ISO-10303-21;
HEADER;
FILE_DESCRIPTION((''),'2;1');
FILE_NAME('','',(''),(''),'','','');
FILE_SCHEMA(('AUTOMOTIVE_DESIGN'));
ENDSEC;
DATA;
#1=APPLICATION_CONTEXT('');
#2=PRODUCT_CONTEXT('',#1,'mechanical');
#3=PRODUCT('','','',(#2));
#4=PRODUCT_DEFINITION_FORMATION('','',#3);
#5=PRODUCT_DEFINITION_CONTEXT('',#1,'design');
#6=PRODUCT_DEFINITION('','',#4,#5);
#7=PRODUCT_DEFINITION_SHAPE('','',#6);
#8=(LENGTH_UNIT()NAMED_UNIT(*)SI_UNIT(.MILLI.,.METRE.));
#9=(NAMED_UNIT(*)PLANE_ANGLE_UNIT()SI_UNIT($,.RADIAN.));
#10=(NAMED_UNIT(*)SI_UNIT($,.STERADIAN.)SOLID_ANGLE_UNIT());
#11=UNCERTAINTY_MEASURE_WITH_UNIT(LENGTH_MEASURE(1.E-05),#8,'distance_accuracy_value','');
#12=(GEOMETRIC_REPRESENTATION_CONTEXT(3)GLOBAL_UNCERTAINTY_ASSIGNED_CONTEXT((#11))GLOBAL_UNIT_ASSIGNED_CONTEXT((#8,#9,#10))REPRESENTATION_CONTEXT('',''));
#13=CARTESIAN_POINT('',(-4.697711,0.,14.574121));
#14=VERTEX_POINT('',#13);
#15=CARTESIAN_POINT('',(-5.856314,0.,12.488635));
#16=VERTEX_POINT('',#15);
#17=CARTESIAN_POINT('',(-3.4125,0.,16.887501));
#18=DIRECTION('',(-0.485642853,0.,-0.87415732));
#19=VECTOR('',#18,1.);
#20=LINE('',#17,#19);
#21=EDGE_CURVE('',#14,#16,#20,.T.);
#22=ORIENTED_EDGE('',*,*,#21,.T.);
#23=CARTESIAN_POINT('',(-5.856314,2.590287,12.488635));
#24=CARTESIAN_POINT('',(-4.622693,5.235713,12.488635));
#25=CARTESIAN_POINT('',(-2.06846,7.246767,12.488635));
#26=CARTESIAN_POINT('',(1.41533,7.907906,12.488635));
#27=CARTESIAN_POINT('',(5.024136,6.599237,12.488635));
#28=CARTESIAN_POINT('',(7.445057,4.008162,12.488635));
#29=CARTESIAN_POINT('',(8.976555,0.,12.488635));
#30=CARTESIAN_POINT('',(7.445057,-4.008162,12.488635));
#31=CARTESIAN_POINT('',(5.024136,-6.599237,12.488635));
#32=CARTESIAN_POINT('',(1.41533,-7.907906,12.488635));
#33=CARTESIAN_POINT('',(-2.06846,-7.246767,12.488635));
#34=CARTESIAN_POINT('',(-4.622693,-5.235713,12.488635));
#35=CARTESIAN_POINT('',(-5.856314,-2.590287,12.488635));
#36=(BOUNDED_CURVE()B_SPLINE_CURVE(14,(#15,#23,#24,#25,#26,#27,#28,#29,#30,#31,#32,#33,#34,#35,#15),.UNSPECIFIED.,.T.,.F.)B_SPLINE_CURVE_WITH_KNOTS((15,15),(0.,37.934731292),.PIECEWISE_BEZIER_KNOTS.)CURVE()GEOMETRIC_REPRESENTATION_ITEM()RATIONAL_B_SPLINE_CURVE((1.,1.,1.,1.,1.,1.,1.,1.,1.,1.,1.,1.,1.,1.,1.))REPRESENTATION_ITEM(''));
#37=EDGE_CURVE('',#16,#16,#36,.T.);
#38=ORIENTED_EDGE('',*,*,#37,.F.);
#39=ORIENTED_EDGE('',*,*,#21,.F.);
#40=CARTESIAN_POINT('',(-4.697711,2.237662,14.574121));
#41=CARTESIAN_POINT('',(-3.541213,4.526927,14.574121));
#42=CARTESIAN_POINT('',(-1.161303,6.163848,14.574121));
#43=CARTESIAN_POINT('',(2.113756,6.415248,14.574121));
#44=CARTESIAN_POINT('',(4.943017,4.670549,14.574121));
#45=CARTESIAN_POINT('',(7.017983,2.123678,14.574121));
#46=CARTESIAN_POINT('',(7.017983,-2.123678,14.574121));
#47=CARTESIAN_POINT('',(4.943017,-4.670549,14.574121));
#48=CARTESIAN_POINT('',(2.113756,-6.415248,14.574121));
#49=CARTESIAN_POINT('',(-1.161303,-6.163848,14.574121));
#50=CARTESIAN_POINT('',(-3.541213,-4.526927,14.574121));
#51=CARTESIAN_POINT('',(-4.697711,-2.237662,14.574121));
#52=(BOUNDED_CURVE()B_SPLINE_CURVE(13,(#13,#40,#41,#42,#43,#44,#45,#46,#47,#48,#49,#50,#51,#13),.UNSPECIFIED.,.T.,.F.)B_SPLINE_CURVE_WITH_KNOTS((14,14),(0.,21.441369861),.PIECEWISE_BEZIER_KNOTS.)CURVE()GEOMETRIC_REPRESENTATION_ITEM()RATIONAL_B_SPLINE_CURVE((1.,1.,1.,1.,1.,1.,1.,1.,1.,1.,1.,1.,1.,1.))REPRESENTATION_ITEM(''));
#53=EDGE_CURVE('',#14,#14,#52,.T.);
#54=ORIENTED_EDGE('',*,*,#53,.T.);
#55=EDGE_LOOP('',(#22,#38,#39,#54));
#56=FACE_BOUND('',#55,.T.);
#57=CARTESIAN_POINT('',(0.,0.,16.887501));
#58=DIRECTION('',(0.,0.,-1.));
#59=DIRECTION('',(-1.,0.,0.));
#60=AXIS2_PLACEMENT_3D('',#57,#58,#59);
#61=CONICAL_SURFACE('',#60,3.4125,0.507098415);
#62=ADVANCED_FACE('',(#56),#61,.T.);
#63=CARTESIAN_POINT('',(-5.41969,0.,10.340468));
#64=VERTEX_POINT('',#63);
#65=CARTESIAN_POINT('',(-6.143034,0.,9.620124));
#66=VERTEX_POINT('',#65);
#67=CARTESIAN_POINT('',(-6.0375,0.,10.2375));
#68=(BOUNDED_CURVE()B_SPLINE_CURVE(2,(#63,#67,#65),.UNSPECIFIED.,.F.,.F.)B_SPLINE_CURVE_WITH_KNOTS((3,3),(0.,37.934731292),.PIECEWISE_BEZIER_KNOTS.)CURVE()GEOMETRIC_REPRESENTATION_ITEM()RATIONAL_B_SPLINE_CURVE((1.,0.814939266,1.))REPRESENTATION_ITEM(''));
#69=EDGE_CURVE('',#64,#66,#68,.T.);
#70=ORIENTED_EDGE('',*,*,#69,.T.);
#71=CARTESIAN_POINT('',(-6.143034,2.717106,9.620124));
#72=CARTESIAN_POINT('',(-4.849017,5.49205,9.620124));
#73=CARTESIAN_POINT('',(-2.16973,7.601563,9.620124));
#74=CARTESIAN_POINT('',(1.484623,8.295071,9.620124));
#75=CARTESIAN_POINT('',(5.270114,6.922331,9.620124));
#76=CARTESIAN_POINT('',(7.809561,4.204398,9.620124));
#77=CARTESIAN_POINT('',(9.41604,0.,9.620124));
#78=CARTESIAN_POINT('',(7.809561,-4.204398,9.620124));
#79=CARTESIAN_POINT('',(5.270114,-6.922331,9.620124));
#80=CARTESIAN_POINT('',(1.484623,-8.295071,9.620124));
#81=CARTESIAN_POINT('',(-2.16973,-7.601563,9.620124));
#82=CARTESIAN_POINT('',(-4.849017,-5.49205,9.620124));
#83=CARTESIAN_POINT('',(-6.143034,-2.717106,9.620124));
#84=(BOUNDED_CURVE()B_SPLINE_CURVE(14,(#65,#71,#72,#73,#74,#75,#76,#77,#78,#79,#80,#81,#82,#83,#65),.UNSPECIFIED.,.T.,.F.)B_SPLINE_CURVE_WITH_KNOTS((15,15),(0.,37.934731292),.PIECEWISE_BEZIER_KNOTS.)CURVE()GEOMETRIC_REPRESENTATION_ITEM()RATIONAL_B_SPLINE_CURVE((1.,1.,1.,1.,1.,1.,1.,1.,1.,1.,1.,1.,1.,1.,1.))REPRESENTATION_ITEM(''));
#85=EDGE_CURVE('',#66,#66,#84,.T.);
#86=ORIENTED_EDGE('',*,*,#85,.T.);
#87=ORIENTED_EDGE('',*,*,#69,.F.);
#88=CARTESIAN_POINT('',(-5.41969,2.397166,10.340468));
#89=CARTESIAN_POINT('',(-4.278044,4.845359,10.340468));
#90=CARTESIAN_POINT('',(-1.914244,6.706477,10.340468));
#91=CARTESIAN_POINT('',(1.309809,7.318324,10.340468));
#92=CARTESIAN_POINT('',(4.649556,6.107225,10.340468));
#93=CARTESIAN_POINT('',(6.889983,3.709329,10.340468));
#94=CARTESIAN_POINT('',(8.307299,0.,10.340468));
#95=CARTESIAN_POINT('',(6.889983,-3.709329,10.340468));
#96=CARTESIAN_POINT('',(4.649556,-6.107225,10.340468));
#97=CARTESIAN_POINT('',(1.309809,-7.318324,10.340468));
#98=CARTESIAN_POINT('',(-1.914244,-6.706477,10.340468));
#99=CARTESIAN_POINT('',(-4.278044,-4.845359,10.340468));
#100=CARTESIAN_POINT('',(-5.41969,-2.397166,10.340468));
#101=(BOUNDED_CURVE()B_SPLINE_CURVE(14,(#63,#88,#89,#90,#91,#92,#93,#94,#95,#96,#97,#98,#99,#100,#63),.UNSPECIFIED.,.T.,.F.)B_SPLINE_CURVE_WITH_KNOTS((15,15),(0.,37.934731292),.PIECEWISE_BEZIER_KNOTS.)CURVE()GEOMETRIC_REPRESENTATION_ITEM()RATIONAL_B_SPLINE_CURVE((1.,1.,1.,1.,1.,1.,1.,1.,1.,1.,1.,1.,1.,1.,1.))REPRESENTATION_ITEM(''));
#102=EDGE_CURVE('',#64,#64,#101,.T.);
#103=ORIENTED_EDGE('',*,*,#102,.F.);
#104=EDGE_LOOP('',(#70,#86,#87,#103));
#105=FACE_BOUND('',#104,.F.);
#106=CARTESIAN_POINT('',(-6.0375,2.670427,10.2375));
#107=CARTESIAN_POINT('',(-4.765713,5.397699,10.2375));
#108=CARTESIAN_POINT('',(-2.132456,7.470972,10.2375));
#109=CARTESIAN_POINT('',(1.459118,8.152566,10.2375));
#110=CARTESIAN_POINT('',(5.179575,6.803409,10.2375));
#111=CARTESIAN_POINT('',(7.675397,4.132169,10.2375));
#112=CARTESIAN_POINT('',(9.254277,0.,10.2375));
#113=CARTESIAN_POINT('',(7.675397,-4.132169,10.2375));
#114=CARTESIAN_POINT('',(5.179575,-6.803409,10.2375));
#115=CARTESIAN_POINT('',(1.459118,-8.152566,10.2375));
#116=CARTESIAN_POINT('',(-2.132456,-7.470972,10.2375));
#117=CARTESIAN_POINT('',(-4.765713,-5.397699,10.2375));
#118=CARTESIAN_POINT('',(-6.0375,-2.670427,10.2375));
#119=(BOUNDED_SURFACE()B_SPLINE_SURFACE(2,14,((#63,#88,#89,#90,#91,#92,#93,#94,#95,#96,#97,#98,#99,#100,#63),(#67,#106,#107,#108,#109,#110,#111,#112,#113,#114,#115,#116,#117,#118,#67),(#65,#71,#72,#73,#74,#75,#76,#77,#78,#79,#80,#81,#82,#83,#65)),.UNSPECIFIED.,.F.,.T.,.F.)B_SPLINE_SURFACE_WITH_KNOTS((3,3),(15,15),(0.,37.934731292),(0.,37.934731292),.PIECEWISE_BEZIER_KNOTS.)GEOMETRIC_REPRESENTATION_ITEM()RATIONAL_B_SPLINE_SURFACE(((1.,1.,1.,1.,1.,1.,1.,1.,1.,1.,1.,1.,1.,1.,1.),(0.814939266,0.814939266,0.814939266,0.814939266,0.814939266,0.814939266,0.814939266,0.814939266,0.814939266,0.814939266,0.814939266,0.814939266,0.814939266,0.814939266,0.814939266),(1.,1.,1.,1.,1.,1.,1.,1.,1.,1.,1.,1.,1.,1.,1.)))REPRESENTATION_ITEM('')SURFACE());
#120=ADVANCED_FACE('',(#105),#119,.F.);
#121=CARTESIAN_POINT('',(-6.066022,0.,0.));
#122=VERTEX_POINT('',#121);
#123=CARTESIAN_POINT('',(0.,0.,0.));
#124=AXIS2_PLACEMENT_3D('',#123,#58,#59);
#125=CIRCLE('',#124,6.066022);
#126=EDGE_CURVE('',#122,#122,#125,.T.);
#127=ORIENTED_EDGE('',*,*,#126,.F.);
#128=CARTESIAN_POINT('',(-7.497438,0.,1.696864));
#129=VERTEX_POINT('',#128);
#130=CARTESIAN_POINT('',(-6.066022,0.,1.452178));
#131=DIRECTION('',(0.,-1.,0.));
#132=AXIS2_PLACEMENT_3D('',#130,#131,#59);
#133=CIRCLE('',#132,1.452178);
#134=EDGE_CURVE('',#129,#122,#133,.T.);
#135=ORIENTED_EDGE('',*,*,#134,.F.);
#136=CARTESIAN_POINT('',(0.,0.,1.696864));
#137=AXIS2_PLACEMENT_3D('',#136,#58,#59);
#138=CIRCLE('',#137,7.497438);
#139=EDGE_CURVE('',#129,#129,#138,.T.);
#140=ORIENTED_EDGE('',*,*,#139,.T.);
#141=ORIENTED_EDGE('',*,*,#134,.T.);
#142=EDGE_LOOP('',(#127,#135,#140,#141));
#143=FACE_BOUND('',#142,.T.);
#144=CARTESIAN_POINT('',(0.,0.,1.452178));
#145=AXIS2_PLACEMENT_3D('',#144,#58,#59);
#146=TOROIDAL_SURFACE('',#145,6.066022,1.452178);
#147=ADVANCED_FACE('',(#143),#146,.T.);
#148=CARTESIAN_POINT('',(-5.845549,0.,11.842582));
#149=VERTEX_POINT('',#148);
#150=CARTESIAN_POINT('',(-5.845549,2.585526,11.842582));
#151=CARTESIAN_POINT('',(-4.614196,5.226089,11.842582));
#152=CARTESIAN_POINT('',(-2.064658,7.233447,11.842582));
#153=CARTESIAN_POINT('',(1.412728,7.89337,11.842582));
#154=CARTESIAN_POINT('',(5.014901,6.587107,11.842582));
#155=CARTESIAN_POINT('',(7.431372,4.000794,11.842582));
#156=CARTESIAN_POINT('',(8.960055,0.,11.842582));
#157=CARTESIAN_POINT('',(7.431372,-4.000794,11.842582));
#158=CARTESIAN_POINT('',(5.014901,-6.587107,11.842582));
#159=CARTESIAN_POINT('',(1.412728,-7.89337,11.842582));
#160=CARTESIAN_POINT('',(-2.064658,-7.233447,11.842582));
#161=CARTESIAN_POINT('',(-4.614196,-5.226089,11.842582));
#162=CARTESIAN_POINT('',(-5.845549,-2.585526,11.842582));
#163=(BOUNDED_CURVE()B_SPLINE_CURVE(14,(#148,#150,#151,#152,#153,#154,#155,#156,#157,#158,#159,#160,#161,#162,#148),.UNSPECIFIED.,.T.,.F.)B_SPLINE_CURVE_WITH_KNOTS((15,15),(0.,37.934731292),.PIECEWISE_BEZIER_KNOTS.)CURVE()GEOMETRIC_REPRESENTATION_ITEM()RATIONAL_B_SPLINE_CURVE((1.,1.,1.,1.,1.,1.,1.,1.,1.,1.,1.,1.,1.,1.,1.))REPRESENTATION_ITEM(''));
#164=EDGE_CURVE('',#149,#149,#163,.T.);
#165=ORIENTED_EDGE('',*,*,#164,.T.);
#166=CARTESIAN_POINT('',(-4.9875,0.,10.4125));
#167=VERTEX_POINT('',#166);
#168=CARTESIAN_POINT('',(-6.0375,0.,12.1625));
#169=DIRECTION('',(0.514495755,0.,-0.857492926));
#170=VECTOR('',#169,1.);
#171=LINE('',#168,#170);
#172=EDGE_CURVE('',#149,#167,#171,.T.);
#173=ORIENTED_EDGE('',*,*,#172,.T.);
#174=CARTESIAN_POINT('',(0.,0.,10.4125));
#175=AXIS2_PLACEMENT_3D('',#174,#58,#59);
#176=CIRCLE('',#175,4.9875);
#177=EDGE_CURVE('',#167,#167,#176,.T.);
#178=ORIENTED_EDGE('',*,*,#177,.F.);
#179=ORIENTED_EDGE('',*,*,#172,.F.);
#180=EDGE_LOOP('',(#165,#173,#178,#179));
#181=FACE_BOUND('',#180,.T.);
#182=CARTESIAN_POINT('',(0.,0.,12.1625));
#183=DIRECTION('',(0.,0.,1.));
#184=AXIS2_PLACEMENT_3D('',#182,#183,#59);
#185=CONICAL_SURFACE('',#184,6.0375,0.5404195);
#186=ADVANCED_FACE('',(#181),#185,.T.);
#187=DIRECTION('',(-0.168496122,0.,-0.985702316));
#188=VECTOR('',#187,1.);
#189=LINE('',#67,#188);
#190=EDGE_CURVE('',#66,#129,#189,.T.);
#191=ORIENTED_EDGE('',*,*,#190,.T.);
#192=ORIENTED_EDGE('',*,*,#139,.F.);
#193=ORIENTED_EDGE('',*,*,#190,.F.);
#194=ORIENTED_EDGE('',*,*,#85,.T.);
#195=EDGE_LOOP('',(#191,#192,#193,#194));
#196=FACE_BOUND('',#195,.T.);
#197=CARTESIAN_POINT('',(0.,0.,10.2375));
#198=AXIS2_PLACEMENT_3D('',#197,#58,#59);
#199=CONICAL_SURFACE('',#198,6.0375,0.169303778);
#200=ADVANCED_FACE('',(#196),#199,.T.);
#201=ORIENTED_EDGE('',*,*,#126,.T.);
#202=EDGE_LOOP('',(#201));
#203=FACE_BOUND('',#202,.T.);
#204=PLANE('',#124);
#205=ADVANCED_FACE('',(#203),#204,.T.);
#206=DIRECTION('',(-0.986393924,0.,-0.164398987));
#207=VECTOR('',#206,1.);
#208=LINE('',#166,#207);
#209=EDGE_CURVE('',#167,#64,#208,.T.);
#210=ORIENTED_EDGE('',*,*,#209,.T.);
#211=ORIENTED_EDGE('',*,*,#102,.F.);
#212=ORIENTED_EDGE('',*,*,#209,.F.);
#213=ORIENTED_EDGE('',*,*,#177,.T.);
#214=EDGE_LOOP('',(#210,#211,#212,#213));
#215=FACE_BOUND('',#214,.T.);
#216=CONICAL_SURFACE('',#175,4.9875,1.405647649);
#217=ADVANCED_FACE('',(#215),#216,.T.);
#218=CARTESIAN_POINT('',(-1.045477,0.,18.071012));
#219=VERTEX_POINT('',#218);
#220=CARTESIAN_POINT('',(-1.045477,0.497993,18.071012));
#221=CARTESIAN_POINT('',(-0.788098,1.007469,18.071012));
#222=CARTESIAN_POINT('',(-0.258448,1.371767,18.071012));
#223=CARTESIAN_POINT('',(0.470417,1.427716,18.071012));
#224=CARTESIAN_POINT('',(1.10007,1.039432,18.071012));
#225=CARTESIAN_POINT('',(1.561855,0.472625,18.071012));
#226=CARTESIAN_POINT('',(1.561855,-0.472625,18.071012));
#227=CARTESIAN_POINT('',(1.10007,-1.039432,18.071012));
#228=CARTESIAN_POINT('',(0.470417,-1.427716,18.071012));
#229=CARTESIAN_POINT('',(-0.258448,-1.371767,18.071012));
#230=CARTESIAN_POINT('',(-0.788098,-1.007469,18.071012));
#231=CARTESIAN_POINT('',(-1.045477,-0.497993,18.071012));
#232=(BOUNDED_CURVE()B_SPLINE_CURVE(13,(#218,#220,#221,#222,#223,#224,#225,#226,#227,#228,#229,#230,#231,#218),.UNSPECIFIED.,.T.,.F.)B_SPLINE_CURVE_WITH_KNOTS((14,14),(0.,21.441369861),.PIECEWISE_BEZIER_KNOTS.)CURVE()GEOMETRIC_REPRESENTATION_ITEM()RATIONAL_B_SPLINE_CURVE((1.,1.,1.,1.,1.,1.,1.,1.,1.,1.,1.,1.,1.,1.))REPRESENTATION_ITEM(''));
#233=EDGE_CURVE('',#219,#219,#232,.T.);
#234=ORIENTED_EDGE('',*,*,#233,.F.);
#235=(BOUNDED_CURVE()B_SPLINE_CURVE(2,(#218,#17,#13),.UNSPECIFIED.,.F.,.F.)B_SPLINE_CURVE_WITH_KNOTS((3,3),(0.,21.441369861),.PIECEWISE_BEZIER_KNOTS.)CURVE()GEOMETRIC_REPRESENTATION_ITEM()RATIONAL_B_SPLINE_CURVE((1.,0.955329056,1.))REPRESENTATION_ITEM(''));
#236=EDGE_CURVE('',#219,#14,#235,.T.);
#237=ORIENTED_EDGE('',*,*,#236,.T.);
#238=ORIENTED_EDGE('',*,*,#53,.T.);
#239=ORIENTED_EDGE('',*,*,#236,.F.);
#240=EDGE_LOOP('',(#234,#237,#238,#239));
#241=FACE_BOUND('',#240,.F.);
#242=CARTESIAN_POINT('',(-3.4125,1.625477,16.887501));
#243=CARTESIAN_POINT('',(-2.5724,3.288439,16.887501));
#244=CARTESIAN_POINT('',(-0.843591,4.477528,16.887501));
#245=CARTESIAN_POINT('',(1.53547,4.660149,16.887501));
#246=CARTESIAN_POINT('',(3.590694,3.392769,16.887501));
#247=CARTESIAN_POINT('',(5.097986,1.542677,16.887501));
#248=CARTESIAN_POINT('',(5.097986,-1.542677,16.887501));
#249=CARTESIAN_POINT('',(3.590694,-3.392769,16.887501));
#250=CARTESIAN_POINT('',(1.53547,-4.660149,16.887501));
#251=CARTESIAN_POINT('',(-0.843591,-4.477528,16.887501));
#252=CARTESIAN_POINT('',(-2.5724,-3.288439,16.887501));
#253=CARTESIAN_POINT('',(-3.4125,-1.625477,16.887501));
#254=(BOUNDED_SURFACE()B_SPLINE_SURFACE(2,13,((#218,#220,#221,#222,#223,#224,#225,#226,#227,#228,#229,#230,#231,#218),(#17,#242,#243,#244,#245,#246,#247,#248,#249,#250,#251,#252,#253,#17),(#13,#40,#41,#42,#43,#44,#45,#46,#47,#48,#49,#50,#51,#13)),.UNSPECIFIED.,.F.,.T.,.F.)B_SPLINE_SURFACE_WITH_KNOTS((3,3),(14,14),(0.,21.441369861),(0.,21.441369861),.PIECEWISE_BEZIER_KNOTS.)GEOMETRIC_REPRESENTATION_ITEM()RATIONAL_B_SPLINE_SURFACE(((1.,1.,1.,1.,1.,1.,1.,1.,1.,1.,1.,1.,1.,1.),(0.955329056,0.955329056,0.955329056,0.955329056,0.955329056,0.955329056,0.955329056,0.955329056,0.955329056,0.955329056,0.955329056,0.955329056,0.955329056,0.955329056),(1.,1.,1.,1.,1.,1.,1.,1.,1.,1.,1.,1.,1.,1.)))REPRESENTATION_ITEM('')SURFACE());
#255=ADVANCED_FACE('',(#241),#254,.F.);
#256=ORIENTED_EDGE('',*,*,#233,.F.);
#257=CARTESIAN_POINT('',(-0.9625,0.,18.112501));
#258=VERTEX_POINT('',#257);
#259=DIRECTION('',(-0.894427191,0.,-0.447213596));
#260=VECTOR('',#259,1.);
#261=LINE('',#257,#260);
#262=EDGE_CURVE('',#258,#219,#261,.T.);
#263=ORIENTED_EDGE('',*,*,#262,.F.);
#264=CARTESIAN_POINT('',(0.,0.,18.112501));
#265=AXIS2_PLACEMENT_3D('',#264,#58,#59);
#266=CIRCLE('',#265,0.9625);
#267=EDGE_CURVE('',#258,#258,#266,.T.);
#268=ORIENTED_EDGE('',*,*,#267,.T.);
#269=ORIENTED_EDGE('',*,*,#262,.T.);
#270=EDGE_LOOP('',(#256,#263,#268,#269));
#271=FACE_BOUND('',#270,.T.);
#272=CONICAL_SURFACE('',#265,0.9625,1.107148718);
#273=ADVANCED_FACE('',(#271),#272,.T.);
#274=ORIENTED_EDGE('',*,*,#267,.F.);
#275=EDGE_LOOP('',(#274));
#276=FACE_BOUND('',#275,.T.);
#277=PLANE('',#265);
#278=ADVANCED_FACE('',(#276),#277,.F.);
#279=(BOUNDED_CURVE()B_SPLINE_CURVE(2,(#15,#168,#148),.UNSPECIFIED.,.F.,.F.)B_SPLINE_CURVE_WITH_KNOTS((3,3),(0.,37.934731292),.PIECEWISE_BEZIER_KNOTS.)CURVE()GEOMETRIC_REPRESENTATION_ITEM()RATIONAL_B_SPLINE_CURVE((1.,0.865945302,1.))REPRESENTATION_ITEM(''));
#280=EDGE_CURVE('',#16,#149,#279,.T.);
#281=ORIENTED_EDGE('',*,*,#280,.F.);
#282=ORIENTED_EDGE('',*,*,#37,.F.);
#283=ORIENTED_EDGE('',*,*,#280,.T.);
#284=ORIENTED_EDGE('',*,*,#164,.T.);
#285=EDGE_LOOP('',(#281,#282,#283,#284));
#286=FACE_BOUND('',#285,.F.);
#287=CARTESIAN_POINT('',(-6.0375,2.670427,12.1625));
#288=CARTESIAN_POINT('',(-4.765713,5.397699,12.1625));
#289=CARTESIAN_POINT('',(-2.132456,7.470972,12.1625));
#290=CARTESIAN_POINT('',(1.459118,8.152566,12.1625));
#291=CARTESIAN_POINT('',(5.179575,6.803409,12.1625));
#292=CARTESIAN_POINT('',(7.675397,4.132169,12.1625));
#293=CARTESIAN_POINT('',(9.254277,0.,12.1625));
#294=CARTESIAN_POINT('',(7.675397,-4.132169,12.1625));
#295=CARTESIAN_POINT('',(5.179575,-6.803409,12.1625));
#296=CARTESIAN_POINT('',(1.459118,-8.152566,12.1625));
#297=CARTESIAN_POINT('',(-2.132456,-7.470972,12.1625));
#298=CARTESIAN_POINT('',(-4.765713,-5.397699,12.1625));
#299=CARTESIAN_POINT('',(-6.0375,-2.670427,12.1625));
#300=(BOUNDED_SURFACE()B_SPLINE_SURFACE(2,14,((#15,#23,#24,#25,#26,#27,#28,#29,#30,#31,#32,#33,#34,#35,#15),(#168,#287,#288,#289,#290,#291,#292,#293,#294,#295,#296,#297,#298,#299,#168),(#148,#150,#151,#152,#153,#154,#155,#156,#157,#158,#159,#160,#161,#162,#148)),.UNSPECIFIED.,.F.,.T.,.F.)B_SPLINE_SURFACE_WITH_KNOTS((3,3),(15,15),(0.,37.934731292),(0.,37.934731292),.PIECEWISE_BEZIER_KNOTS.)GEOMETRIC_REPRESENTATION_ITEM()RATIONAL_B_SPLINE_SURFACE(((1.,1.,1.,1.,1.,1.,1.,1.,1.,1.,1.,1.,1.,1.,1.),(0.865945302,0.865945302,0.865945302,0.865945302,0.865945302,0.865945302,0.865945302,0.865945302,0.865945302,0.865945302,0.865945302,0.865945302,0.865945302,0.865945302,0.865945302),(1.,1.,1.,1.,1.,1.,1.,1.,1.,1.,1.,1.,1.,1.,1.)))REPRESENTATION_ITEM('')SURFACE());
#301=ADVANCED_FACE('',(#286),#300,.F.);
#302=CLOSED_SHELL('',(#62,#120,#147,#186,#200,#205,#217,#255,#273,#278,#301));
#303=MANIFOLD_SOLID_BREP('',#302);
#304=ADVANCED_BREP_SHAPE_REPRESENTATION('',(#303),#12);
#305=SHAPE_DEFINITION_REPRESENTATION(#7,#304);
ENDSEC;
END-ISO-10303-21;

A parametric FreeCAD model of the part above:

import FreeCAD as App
import Part
import Sketcher
Q = App.Units.Quantity


def edges_at(feature, points):
    """Names of the edges that pass closest to the given points."""
    edges = feature.Shape.Edges
    near = lambda p: min(range(len(edges)), key=lambda i: edges[i].distToShape(Part.Vertex(*p))[0])
    return sorted({f"Edge{near(p) + 1}" for p in points})


def add_polygon(sketch, points):
    """Adds a closed chain of lines whose ends are joined by coincident constraints."""
    first, n = sketch.GeometryCount, len(points)
    for a, b in zip(points, points[1:] + points[:1]):
        sketch.addGeometry(Part.LineSegment(App.Vector(*a, 0), App.Vector(*b, 0)), False)
    for i in range(n):
        sketch.addConstraint(Sketcher.Constraint("Coincident", first + i, 2, first + (i + 1) % n, 1))

doc = App.newDocument("Part")
body = doc.addObject("PartDesign::Body", "Body")

# Sketch on XZ plane
sketch1 = body.newObject("Sketcher::SketchObject", "Sketch")
sketch1.AttachmentSupport = (doc.getObject("XZ_Plane"), [""])
sketch1.MapMode = "FlatFace"
add_polygon(sketch1, [(-7.7875, 0), (0, 0), (0, 18.112501), (-0.9625, 18.112501), (-3.4125, 16.887501), (-6.0375, 12.1625), (-4.9875, 10.4125), (-6.0375, 10.2375)])  # lines 0-7
sketch1.addConstraint([
    Sketcher.Constraint("Horizontal", 0),
    Sketcher.Constraint("Vertical", 1),
    Sketcher.Constraint("Horizontal", 2),
    Sketcher.Constraint("Coincident", 0, 2, -1, 1),
    Sketcher.Constraint("Vertical", 4, 2, 6, 2),
    Sketcher.Constraint("DistanceY", 5, 2, 2, 2, Q("7.700001 mm")),
    Sketcher.Constraint("DistanceX", 7, 2, 5, 2, Q("2.8 mm")),
    Sketcher.Constraint("DistanceX", 3, 2, 2, 2, Q("2.45 mm")),
    Sketcher.Constraint("DistanceY", 4, 2, 2, 2, Q("5.950001 mm")),
    Sketcher.Constraint("DistanceX", 4, 2, 5, 2, Q("1.05 mm")),
    Sketcher.Constraint("DistanceY", 6, 2, 3, 2, Q("6.650001 mm")),
    Sketcher.Constraint("DistanceX", 0, 1, 0, 2, Q("7.7875 mm")),
    Sketcher.Constraint("DistanceX", 2, 2, 2, 1, Q("0.9625 mm")),
    Sketcher.Constraint("DistanceY", 1, 1, 1, 2, Q("18.112501 mm")),
    Sketcher.Constraint("DistanceY", 3, 2, 2, 2, Q("1.225 mm")),
])
revolution = body.newObject("PartDesign::Revolution", "Revolution")
revolution.Profile = sketch1
revolution.ReferenceAxis = (sketch1, ["V_Axis"])
revolution.Angle = 360
doc.recompute()

fillet = body.newObject("PartDesign::Fillet", "Fillet")
fillet.Base = (revolution, edges_at(revolution, [(3.413, 0, 16.888)]))
fillet.Radius = 8.554368
doc.recompute()

fillet2 = body.newObject("PartDesign::Fillet", "Fillet001")
fillet2.Base = (fillet, edges_at(fillet, [(6.037, 0, 12.162)]))
fillet2.Radius = 0.645964
doc.recompute()

fillet3 = body.newObject("PartDesign::Fillet", "Fillet002")
fillet3.Base = (fillet2, edges_at(fillet2, [(6.037, 0, 10.238)]))
fillet3.Radius = 0.880727
doc.recompute()

fillet4 = body.newObject("PartDesign::Fillet", "Fillet003")
fillet4.Base = (fillet3, edges_at(fillet3, [(7.787, 0, 0)]))
fillet4.Radius = 1.452178

doc.recompute()
